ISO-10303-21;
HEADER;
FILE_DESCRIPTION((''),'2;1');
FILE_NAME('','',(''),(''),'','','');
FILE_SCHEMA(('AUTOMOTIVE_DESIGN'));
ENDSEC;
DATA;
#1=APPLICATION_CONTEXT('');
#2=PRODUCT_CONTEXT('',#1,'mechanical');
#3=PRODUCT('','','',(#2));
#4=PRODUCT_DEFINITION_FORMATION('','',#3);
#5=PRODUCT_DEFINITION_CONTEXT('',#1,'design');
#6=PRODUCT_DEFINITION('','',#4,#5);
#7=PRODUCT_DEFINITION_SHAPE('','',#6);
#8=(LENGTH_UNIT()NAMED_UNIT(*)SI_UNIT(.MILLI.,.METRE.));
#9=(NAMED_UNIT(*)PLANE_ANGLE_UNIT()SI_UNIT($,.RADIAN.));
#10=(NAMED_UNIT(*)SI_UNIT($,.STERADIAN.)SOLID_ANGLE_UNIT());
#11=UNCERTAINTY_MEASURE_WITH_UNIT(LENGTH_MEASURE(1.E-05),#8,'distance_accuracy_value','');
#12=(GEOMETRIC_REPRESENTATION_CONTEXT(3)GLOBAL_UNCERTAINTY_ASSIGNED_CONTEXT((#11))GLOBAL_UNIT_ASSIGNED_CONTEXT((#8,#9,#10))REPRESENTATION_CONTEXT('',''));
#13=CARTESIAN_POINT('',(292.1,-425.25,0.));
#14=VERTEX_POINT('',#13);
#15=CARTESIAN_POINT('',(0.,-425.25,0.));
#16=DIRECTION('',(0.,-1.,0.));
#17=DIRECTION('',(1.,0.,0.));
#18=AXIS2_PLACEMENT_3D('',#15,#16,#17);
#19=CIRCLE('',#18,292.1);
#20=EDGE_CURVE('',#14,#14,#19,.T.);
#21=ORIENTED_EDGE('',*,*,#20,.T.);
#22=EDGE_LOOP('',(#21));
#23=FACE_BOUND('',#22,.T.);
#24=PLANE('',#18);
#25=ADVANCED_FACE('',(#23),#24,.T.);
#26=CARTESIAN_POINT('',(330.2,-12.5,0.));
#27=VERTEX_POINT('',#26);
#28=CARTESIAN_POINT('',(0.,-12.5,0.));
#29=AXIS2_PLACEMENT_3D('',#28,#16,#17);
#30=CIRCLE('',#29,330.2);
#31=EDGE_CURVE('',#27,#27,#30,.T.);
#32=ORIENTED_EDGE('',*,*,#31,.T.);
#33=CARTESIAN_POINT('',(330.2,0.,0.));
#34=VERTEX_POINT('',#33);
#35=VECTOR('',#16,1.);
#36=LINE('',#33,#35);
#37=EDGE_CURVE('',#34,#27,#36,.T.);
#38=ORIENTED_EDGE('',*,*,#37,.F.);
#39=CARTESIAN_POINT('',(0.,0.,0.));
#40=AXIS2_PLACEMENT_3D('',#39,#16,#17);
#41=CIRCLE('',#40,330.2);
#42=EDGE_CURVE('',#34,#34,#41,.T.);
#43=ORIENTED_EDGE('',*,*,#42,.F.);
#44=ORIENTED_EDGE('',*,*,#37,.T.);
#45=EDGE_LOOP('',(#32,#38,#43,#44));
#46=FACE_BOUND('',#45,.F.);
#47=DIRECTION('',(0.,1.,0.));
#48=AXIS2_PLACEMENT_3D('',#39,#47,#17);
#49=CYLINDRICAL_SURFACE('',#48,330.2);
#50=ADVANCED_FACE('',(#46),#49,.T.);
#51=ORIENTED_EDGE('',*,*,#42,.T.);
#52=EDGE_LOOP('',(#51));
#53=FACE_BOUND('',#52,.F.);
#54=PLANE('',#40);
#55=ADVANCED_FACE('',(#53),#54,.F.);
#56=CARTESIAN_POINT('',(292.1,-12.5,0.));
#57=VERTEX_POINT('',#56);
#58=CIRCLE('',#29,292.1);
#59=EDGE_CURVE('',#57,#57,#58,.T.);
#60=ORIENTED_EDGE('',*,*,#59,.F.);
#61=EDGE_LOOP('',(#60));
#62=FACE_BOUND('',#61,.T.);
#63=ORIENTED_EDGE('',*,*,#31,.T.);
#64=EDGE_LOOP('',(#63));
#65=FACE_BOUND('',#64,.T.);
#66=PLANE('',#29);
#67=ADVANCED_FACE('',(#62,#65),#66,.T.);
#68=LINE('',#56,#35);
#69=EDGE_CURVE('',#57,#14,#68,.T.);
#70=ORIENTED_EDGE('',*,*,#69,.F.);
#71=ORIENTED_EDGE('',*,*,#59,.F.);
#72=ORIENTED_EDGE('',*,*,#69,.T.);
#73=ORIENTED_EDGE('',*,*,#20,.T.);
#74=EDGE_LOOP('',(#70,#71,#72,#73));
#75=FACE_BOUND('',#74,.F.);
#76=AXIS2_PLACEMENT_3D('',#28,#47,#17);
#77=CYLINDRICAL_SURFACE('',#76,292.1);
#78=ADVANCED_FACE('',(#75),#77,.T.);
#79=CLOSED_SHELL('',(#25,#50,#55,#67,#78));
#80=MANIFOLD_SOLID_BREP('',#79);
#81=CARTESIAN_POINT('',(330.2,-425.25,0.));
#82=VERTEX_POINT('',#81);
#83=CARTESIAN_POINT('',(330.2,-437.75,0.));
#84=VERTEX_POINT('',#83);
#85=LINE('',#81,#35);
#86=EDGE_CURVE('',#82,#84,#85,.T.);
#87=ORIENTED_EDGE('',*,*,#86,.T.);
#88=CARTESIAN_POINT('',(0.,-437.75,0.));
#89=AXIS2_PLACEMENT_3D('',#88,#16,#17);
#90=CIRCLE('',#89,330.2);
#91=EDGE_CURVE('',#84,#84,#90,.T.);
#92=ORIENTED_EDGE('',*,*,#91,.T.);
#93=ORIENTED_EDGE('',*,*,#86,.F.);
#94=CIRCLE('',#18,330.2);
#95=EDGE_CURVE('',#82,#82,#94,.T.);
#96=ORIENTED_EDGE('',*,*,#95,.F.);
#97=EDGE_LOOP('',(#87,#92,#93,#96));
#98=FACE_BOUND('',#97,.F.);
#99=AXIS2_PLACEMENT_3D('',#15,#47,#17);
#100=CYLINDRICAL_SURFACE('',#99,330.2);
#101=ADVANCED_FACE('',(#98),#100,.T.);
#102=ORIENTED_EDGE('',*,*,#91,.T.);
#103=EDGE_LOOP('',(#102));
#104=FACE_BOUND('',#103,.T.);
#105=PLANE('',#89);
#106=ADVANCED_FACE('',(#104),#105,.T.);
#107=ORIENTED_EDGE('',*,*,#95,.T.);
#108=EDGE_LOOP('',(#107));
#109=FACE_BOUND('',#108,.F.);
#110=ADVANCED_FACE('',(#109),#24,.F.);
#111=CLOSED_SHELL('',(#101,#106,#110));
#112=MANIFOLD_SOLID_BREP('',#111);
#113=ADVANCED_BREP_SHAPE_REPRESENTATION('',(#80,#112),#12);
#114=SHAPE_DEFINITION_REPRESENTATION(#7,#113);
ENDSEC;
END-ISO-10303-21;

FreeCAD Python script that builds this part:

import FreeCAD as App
import Part
import Sketcher
Q = App.Units.Quantity

doc = App.newDocument("Part")
body = doc.addObject("PartDesign::Body", "Body")

sketch1 = doc.addObject("Sketcher::SketchObject", "Sketch")
body.addObject(sketch1)
sketch1.AttachmentSupport = (doc.XZ_Plane, [""])
sketch1.MapMode = "FlatFace"
sketch1.addGeometry(Part.Circle(App.Vector(0, 0, 0), App.Vector(0, 0, 1), 330), False)
sketch1.addConstraint([
    Sketcher.Constraint("Coincident", 0, 3, -1, 1),
    Sketcher.Constraint("Diameter", 0, Q("26 in")),
])
pad1 = doc.addObject("PartDesign::Pad", "Pad")
body.addObject(pad1)
pad1.Profile = sketch1
pad1.Length = 12.5

sketch2 = doc.addObject("Sketcher::SketchObject", "Sketch001")
body.addObject(sketch2)
sketch2.AttachmentSupport = (doc.XZ_Plane, [""])
sketch2.MapMode = "FlatFace"
sketch2.AttachmentOffset = App.Placement(App.Vector(0, 0, 12.5), App.Rotation())
sketch2.addGeometry(Part.Circle(App.Vector(0, 0, 0), App.Vector(0, 0, 1), 292), False)
sketch2.addConstraint([
    Sketcher.Constraint("Coincident", 0, 3, -1, 1),
    Sketcher.Constraint("Diameter", 0, Q("23 in")),
])
pad2 = doc.addObject("PartDesign::Pad", "Pad001")
body.addObject(pad2)
pad2.Profile = sketch2
pad2.Length = Q("16.25 in")
body2 = doc.addObject("PartDesign::Body", "Body001")

sketch3 = doc.addObject("Sketcher::SketchObject", "Sketch002")
body2.addObject(sketch3)
sketch3.AttachmentSupport = (doc.getObject("XZ_Plane001"), [""])
sketch3.MapMode = "FlatFace"
sketch3.AttachmentOffset = App.Placement(App.Vector(0, 0, 425.25), App.Rotation())
sketch3.addGeometry(Part.Circle(App.Vector(0, 0, 0), App.Vector(0, 0, 1), 330), False)
sketch3.addConstraint([
    Sketcher.Constraint("Coincident", 0, 3, -1, 1),
    Sketcher.Constraint("Diameter", 0, Q("26 in")),
])
pad3 = doc.addObject("PartDesign::Pad", "Pad002")
body2.addObject(pad3)
pad3.Profile = sketch3
pad3.Length = 12.5

doc.recompute()
